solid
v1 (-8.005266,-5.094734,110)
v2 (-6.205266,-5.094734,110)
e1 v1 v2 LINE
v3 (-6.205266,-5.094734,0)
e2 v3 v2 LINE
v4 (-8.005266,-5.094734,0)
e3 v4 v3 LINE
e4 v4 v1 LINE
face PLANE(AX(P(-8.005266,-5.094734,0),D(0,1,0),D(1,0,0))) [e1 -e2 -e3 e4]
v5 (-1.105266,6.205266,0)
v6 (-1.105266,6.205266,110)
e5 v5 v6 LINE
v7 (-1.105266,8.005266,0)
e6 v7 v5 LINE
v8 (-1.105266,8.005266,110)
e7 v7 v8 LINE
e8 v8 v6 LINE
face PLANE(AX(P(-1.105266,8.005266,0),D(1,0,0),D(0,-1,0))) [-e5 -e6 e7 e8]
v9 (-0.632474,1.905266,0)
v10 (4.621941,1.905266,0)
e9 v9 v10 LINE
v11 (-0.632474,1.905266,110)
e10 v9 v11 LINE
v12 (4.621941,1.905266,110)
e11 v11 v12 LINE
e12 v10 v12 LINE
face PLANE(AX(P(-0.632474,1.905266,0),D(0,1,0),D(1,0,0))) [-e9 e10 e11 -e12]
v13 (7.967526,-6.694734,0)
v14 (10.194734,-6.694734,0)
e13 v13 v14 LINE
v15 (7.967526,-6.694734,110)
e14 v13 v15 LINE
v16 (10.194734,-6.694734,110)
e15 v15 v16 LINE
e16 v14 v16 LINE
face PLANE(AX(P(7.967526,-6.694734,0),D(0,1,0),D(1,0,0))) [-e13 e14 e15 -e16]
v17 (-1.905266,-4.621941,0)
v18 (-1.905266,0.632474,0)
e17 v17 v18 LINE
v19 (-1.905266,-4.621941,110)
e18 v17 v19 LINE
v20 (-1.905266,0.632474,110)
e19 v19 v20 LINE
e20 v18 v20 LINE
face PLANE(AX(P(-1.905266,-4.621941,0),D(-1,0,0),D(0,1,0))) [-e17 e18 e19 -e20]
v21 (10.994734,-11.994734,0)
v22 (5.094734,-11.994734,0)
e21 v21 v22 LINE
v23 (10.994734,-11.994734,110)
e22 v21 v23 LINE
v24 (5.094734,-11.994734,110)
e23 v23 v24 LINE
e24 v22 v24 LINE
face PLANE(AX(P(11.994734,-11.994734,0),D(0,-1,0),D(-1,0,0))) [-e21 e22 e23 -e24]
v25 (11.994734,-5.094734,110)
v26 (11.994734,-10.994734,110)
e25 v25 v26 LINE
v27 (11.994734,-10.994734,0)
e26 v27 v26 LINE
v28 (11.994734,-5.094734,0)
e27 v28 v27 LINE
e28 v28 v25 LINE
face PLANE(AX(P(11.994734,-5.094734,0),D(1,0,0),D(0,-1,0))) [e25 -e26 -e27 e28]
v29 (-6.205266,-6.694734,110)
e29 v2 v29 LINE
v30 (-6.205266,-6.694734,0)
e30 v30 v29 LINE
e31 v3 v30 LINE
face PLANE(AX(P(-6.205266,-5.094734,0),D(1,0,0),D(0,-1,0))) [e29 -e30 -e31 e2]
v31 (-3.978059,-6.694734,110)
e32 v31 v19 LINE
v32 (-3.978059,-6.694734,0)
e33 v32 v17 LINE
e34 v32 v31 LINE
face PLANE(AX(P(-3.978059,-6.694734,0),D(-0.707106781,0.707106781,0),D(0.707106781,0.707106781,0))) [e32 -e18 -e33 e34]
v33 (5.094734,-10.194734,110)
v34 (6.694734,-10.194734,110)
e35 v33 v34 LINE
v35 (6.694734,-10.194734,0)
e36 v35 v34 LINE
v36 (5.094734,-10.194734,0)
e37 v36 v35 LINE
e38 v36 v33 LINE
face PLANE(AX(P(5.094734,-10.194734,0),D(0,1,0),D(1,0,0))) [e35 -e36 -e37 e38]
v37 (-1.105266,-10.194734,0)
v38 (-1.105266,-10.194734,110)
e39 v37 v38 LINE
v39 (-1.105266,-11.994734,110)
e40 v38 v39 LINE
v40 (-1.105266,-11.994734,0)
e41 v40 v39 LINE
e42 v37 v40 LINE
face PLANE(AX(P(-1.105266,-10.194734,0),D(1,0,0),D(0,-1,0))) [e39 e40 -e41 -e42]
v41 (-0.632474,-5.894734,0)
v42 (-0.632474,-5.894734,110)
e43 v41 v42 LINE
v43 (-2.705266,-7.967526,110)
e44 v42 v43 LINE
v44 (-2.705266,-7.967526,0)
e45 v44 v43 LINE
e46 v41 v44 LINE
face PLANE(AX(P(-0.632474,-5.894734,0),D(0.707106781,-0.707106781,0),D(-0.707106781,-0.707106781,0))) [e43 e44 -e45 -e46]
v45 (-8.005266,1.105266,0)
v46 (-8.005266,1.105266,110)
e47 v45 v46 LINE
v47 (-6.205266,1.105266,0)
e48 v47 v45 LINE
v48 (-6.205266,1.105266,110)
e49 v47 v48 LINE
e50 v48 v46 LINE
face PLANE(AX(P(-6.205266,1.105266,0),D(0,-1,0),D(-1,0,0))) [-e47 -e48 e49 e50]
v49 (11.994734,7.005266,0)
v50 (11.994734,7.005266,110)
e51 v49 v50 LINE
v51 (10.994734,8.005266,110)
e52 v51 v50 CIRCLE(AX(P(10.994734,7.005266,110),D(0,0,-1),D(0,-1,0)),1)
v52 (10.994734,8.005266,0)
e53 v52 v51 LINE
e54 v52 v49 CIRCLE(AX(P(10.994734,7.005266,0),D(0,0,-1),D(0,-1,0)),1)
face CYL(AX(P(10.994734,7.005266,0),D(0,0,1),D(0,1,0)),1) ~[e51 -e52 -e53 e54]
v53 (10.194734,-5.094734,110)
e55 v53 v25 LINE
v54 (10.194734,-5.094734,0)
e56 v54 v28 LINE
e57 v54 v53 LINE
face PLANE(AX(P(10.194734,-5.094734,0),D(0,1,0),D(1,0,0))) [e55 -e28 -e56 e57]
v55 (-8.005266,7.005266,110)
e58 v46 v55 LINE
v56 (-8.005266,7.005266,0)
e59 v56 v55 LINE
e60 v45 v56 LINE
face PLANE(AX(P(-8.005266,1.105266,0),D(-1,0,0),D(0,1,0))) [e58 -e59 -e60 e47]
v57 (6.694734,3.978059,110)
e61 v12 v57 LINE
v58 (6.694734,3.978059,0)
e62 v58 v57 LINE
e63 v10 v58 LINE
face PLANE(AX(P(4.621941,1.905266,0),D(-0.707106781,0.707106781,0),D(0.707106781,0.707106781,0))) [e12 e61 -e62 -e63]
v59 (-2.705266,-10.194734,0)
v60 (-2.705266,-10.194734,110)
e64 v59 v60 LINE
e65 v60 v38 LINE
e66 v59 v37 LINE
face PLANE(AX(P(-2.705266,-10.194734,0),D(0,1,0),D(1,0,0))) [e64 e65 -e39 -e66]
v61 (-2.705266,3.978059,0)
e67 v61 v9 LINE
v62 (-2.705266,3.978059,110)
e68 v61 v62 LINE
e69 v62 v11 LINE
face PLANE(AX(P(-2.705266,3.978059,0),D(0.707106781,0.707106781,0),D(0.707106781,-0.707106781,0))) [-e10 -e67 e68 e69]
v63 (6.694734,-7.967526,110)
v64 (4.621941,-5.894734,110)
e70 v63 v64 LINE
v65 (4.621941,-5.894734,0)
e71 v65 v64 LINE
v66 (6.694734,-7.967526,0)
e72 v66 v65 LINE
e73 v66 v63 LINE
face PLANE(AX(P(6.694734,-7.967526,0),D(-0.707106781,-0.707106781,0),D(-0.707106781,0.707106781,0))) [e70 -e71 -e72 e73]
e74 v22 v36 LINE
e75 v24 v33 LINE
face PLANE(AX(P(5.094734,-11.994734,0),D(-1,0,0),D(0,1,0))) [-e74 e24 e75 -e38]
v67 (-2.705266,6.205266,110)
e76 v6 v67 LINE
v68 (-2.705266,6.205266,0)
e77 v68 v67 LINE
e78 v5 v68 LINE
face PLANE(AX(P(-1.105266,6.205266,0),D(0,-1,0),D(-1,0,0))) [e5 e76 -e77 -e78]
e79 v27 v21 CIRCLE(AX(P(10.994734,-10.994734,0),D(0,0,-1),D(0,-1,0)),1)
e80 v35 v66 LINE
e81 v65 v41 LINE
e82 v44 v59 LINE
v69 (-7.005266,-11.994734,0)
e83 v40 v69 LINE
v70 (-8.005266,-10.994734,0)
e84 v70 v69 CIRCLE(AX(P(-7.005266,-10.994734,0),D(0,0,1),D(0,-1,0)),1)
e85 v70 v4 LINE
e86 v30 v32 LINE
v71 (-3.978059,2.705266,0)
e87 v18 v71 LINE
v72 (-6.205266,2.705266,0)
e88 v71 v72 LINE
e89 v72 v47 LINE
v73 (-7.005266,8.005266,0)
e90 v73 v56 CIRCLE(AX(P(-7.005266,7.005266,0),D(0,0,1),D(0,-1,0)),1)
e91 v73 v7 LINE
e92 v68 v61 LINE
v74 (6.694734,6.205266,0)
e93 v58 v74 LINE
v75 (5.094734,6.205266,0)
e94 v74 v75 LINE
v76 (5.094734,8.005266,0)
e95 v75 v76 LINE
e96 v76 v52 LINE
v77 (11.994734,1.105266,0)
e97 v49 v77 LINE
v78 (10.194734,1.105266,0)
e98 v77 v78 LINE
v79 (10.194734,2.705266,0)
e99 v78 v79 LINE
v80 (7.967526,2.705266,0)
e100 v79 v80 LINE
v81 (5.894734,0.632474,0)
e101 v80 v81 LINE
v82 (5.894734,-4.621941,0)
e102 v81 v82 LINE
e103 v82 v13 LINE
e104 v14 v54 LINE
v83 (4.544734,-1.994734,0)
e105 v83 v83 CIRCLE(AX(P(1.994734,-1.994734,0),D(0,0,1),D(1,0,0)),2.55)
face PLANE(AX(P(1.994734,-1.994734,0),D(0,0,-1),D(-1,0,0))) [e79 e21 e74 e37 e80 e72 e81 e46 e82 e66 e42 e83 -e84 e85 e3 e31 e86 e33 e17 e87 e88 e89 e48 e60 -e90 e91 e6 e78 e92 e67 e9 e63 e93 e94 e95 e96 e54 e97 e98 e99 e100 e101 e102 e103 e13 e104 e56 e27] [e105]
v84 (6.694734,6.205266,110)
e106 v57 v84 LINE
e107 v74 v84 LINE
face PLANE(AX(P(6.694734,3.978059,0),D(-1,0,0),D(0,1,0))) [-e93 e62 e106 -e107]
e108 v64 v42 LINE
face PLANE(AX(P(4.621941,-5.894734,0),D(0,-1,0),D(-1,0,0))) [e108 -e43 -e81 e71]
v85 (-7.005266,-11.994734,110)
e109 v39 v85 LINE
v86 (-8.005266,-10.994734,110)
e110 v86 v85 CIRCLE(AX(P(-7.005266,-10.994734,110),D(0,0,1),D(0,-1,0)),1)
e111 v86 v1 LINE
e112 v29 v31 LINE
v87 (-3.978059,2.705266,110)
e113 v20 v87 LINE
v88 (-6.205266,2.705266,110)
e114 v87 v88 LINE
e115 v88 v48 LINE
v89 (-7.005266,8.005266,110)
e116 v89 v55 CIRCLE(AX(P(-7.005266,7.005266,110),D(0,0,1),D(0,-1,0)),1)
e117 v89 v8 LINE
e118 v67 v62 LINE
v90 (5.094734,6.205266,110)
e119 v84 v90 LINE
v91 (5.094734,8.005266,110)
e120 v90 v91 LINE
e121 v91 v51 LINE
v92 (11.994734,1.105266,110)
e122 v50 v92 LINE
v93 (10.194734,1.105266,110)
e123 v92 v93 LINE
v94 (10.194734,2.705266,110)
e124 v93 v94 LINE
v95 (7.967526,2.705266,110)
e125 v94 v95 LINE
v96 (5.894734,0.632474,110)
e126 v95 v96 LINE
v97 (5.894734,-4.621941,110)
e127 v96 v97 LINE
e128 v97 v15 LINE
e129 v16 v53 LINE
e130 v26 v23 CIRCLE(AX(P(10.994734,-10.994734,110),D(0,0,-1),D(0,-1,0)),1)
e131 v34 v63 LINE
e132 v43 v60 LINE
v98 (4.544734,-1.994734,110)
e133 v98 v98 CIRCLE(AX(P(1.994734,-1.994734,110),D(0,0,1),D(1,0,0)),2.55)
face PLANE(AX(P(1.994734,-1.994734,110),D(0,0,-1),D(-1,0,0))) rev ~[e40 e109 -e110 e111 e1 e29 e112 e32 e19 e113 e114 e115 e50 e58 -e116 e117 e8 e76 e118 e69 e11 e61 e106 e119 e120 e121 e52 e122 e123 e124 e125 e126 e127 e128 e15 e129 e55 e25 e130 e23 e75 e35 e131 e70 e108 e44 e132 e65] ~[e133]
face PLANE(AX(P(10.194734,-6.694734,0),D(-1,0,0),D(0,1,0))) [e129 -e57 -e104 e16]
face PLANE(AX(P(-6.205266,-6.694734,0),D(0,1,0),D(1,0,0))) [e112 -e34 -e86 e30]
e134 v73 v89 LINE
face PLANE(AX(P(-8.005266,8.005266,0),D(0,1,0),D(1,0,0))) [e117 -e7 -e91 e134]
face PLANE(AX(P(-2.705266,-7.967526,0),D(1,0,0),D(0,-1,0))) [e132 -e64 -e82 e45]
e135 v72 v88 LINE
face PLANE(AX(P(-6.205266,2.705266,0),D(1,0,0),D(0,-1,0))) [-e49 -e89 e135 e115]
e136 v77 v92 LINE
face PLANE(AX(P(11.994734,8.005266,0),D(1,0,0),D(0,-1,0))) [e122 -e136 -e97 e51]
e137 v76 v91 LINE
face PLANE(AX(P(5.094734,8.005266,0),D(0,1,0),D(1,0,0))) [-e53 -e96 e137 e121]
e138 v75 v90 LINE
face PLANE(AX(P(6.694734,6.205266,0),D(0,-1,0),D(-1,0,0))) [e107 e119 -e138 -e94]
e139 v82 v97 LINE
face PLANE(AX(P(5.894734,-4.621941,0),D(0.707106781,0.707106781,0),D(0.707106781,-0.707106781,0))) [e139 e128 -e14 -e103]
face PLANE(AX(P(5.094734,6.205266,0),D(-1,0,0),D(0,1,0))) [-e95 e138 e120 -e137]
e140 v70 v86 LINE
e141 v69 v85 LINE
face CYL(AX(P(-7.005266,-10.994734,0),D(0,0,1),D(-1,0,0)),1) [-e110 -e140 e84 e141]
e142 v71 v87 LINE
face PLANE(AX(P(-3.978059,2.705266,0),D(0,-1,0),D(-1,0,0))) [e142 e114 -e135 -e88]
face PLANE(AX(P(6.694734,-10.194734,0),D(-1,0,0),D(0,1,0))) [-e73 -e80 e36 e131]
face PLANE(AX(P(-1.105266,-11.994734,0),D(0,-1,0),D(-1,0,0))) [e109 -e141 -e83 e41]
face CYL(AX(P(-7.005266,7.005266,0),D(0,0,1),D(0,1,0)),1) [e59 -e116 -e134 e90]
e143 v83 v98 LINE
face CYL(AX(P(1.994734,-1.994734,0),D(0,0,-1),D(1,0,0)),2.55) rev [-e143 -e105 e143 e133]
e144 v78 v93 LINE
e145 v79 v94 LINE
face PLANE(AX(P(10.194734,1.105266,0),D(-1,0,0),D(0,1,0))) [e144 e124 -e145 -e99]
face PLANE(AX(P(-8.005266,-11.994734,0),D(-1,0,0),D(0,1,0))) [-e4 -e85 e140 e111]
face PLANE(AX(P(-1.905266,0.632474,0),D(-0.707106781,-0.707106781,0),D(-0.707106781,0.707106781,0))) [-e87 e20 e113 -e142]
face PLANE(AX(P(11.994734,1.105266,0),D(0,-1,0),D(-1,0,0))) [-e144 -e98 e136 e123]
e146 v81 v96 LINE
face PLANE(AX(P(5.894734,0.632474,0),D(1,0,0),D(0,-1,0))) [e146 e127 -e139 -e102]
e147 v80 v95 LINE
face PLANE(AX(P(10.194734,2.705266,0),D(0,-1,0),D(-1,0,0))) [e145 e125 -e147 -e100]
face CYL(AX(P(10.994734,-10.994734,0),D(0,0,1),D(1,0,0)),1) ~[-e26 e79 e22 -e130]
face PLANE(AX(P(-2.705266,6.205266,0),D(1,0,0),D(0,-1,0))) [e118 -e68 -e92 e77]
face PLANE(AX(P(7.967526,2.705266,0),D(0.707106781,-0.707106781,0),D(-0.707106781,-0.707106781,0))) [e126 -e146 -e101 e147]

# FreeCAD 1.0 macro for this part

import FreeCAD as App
import Part
import Sketcher

V = App.Vector
Q = App.Units.Quantity


def edges_at(feature, points):
    """Names of the edges that pass closest to the given points."""
    edges = feature.Shape.Edges
    near = lambda p: min(range(len(edges)), key=lambda i: edges[i].distToShape(Part.Vertex(*p))[0])
    return sorted({f"Edge{near(p) + 1}" for p in points})


def add_polygon(sketch, points):
    """Adds a closed chain of lines whose ends are joined by coincident constraints."""
    first, n = sketch.GeometryCount, len(points)
    for a, b in zip(points, points[1:] + points[:1]):
        sketch.addGeometry(Part.LineSegment(App.Vector(*a, 0), App.Vector(*b, 0)), False)
    for i in range(n):
        sketch.addConstraint(Sketcher.Constraint("Coincident", first + i, 2, first + (i + 1) % n, 1))

doc = App.newDocument("Part")
body = doc.addObject("PartDesign::Body", "Body")

sketch1 = body.newObject("Sketcher::SketchObject", "Sketch")
sketch1.AttachmentSupport = (doc.getObject("XY_Plane"), [""])
sketch1.MapMode = "FlatFace"
add_polygon(sketch1, [(6.7, 4), (4.6, 1.9), (-0.6, 1.9), (-2.7, 4), (-2.7, 6.2), (-1.1, 6.2), (-1.1, 8), (-8, 8), (-8, 1.1), (-6.2, 1.1), (-6.2, 2.7), (-4, 2.7), (-1.9, 0.6), (-1.9, -4.6), (-4, -6.7), (-6.2, -6.7), (-6.2, -5.1), (-8, -5.1), (-8, -12), (-1.1, -12), (-1.1, -10.2), (-2.7, -10.2), (-2.7, -8), (-0.6, -5.9), (4.6, -5.9), (6.7, -8), (6.7, -10.2), (5.1, -10.2), (5.1, -12), (12, -12), (12, -5.1), (10.2, -5.1), (10.2, -6.7), (8, -6.7), (5.9, -4.6), (5.9, 0.6), (8, 2.7), (10.2, 2.7), (10.2, 1.1), (12, 1.1), (12, 8), (5.1, 8), (5.1, 6.2), (6.7, 6.2)])
sketch1.addGeometry(Part.Circle(V(2, -2, 0), V(0, 0, 1), 2.5), False)
sketch1.addConstraint(Sketcher.Constraint("Horizontal", 1))
sketch1.addConstraint(Sketcher.Constraint("Vertical", 3))
sketch1.addConstraint(Sketcher.Constraint("Horizontal", 4))
sketch1.addConstraint(Sketcher.Constraint("Vertical", 5))
sketch1.addConstraint(Sketcher.Constraint("Horizontal", 6))
sketch1.addConstraint(Sketcher.Constraint("Vertical", 7))
sketch1.addConstraint(Sketcher.Constraint("Horizontal", 8))
sketch1.addConstraint(Sketcher.Constraint("Vertical", 9))
sketch1.addConstraint(Sketcher.Constraint("Horizontal", 10))
sketch1.addConstraint(Sketcher.Constraint("Vertical", 12))
sketch1.addConstraint(Sketcher.Constraint("Horizontal", 14))
sketch1.addConstraint(Sketcher.Constraint("Vertical", 15))
sketch1.addConstraint(Sketcher.Constraint("Horizontal", 16))
sketch1.addConstraint(Sketcher.Constraint("Vertical", 17))
sketch1.addConstraint(Sketcher.Constraint("Horizontal", 18))
sketch1.addConstraint(Sketcher.Constraint("Vertical", 19))
sketch1.addConstraint(Sketcher.Constraint("Horizontal", 20))
sketch1.addConstraint(Sketcher.Constraint("Vertical", 21))
sketch1.addConstraint(Sketcher.Constraint("Horizontal", 23))
sketch1.addConstraint(Sketcher.Constraint("Vertical", 25))
sketch1.addConstraint(Sketcher.Constraint("Horizontal", 26))
sketch1.addConstraint(Sketcher.Constraint("Vertical", 27))
sketch1.addConstraint(Sketcher.Constraint("Horizontal", 28))
sketch1.addConstraint(Sketcher.Constraint("Vertical", 29))
sketch1.addConstraint(Sketcher.Constraint("Horizontal", 30))
sketch1.addConstraint(Sketcher.Constraint("Vertical", 31))
sketch1.addConstraint(Sketcher.Constraint("Horizontal", 32))
sketch1.addConstraint(Sketcher.Constraint("Vertical", 34))
sketch1.addConstraint(Sketcher.Constraint("Horizontal", 36))
sketch1.addConstraint(Sketcher.Constraint("Vertical", 37))
sketch1.addConstraint(Sketcher.Constraint("Horizontal", 38))
sketch1.addConstraint(Sketcher.Constraint("Vertical", 39))
sketch1.addConstraint(Sketcher.Constraint("Horizontal", 40))
sketch1.addConstraint(Sketcher.Constraint("Vertical", 41))
sketch1.addConstraint(Sketcher.Constraint("Horizontal", 42))
sketch1.addConstraint(Sketcher.Constraint("Vertical", 43))
sketch1.addConstraint(Sketcher.Constraint("Perpendicular", 0, 2))
sketch1.addConstraint(Sketcher.Constraint("Parallel", 2, 11))
sketch1.addConstraint(Sketcher.Constraint("Perpendicular", 11, 13))
sketch1.addConstraint(Sketcher.Constraint("Parallel", 13, 22))
sketch1.addConstraint(Sketcher.Constraint("Perpendicular", 22, 24))
sketch1.addConstraint(Sketcher.Constraint("Parallel", 24, 33))
sketch1.addConstraint(Sketcher.Constraint("Perpendicular", 33, 35))
sketch1.addConstraint(Sketcher.Constraint("Horizontal", 21, 2, 24, 2))
sketch1.addConstraint(Sketcher.Constraint("Horizontal", 20, 2, 25, 2))
sketch1.addConstraint(Sketcher.Constraint("Horizontal", 18, 2, 27, 2))
sketch1.addConstraint(Sketcher.Constraint("Horizontal", 16, 2, 29, 2))
sketch1.addConstraint(Sketcher.Constraint("Horizontal", 14, 2, 31, 2))
sketch1.addConstraint(Sketcher.Constraint("Horizontal", 12, 2, 33, 2))
sketch1.addConstraint(Sketcher.Constraint("Horizontal", 11, 2, 34, 2))
sketch1.addConstraint(Sketcher.Constraint("Horizontal", 10, 2, 35, 2))
sketch1.addConstraint(Sketcher.Constraint("Horizontal", 8, 2, 37, 2))
sketch1.addConstraint(Sketcher.Constraint("Horizontal", 6, 2, 39, 2))
sketch1.addConstraint(Sketcher.Constraint("Horizontal", 4, 2, 41, 2))
sketch1.addConstraint(Sketcher.Constraint("Horizontal", 2, 2, 43, 2))
sketch1.addConstraint(Sketcher.Constraint("Vertical", 10, 2, 13, 2))
sketch1.addConstraint(Sketcher.Constraint("Vertical", 9, 2, 14, 2))
sketch1.addConstraint(Sketcher.Constraint("Vertical", 7, 2, 16, 2))
sketch1.addConstraint(Sketcher.Constraint("Vertical", 5, 2, 18, 2))
sketch1.addConstraint(Sketcher.Constraint("Vertical", 3, 2, 20, 2))
sketch1.addConstraint(Sketcher.Constraint("Vertical", 1, 2, 22, 2))
sketch1.addConstraint(Sketcher.Constraint("Vertical", 0, 2, 23, 2))
sketch1.addConstraint(Sketcher.Constraint("Vertical", 32, 2, 35, 2))
sketch1.addConstraint(Sketcher.Constraint("Vertical", 31, 2, 36, 2))
sketch1.addConstraint(Sketcher.Constraint("Vertical", 29, 2, 38, 2))
sketch1.addConstraint(Sketcher.Constraint("Vertical", 27, 2, 40, 2))
sketch1.addConstraint(Sketcher.Constraint("Equal", 20, 26))
sketch1.addConstraint(Sketcher.Constraint("Equal", 18, 28))
sketch1.addConstraint(Sketcher.Constraint("Equal", 16, 30))
sketch1.addConstraint(Sketcher.Constraint("Equal", 14, 32))
sketch1.addConstraint(Sketcher.Constraint("Equal", 36, 3))
sketch1.addConstraint(Sketcher.Constraint("Equal", 38, 5))
sketch1.addConstraint(Sketcher.Constraint("Equal", 40, 7))
sketch1.addConstraint(Sketcher.Constraint("Equal", 42, 9))
sketch1.addConstraint(Sketcher.Constraint("Equal", 23, 12))
sketch1.addConstraint(Sketcher.Constraint("Equal", 9, 15))
sketch1.addConstraint(Sketcher.Constraint("Equal", 7, 17))
sketch1.addConstraint(Sketcher.Constraint("Equal", 5, 19))
sketch1.addConstraint(Sketcher.Constraint("Equal", 3, 21))
sketch1.addConstraint(Sketcher.Constraint("Equal", 2, 11))
sketch1.addConstraint(Sketcher.Constraint("Diameter", 44, Q("5.1 mm")))
sketch1.addConstraint(Sketcher.Constraint("DistanceX", 4, 1, 4, 2, Q("1.6 mm")))
sketch1.addConstraint(Sketcher.Constraint("DistanceX", 6, 2, 6, 1, Q("6.9 mm")))
sketch1.addConstraint(Sketcher.Constraint("DistanceX", 8, 1, 8, 2, Q("1.8 mm")))
sketch1.addConstraint(Sketcher.Constraint("DistanceY", 44, 3, 0, 2, Q("3.9 mm")))
sketch1.addConstraint(Sketcher.Constraint("DistanceX", 2, 2, 44, 3, Q("4.7 mm")))
sketch1.addConstraint(Sketcher.Constraint("DistanceY", 1, 2, 3, 2, Q("4.3 mm")))
sketch1.addConstraint(Sketcher.Constraint("DistanceY", 13, 2, 44, 3, Q("4.7 mm")))
sketch1.addConstraint(Sketcher.Constraint("Distance", 0, Q("2.931371 mm")))
sketch1.addConstraint(Sketcher.Constraint("DistanceX", -1, 1, 0, 2, Q("4.621941 mm")))
sketch1.addConstraint(Sketcher.Constraint("DistanceY", -1, 1, 2, 2, Q("3.978059 mm")))
pad1 = body.newObject("PartDesign::Pad", "Pad")
pad1.Profile = sketch1
pad1.Length = 110
doc.recompute()

fillet = body.newObject("PartDesign::Fillet", "Fillet")
fillet.Base = (pad1, edges_at(pad1, [
    (-8.005, -11.995, 55),
    (-8.005, 8.005, 55),
    (11.995, 8.005, 55),
    (11.995, -11.995, 55),
]))
fillet.Radius = 1

doc.recompute()
